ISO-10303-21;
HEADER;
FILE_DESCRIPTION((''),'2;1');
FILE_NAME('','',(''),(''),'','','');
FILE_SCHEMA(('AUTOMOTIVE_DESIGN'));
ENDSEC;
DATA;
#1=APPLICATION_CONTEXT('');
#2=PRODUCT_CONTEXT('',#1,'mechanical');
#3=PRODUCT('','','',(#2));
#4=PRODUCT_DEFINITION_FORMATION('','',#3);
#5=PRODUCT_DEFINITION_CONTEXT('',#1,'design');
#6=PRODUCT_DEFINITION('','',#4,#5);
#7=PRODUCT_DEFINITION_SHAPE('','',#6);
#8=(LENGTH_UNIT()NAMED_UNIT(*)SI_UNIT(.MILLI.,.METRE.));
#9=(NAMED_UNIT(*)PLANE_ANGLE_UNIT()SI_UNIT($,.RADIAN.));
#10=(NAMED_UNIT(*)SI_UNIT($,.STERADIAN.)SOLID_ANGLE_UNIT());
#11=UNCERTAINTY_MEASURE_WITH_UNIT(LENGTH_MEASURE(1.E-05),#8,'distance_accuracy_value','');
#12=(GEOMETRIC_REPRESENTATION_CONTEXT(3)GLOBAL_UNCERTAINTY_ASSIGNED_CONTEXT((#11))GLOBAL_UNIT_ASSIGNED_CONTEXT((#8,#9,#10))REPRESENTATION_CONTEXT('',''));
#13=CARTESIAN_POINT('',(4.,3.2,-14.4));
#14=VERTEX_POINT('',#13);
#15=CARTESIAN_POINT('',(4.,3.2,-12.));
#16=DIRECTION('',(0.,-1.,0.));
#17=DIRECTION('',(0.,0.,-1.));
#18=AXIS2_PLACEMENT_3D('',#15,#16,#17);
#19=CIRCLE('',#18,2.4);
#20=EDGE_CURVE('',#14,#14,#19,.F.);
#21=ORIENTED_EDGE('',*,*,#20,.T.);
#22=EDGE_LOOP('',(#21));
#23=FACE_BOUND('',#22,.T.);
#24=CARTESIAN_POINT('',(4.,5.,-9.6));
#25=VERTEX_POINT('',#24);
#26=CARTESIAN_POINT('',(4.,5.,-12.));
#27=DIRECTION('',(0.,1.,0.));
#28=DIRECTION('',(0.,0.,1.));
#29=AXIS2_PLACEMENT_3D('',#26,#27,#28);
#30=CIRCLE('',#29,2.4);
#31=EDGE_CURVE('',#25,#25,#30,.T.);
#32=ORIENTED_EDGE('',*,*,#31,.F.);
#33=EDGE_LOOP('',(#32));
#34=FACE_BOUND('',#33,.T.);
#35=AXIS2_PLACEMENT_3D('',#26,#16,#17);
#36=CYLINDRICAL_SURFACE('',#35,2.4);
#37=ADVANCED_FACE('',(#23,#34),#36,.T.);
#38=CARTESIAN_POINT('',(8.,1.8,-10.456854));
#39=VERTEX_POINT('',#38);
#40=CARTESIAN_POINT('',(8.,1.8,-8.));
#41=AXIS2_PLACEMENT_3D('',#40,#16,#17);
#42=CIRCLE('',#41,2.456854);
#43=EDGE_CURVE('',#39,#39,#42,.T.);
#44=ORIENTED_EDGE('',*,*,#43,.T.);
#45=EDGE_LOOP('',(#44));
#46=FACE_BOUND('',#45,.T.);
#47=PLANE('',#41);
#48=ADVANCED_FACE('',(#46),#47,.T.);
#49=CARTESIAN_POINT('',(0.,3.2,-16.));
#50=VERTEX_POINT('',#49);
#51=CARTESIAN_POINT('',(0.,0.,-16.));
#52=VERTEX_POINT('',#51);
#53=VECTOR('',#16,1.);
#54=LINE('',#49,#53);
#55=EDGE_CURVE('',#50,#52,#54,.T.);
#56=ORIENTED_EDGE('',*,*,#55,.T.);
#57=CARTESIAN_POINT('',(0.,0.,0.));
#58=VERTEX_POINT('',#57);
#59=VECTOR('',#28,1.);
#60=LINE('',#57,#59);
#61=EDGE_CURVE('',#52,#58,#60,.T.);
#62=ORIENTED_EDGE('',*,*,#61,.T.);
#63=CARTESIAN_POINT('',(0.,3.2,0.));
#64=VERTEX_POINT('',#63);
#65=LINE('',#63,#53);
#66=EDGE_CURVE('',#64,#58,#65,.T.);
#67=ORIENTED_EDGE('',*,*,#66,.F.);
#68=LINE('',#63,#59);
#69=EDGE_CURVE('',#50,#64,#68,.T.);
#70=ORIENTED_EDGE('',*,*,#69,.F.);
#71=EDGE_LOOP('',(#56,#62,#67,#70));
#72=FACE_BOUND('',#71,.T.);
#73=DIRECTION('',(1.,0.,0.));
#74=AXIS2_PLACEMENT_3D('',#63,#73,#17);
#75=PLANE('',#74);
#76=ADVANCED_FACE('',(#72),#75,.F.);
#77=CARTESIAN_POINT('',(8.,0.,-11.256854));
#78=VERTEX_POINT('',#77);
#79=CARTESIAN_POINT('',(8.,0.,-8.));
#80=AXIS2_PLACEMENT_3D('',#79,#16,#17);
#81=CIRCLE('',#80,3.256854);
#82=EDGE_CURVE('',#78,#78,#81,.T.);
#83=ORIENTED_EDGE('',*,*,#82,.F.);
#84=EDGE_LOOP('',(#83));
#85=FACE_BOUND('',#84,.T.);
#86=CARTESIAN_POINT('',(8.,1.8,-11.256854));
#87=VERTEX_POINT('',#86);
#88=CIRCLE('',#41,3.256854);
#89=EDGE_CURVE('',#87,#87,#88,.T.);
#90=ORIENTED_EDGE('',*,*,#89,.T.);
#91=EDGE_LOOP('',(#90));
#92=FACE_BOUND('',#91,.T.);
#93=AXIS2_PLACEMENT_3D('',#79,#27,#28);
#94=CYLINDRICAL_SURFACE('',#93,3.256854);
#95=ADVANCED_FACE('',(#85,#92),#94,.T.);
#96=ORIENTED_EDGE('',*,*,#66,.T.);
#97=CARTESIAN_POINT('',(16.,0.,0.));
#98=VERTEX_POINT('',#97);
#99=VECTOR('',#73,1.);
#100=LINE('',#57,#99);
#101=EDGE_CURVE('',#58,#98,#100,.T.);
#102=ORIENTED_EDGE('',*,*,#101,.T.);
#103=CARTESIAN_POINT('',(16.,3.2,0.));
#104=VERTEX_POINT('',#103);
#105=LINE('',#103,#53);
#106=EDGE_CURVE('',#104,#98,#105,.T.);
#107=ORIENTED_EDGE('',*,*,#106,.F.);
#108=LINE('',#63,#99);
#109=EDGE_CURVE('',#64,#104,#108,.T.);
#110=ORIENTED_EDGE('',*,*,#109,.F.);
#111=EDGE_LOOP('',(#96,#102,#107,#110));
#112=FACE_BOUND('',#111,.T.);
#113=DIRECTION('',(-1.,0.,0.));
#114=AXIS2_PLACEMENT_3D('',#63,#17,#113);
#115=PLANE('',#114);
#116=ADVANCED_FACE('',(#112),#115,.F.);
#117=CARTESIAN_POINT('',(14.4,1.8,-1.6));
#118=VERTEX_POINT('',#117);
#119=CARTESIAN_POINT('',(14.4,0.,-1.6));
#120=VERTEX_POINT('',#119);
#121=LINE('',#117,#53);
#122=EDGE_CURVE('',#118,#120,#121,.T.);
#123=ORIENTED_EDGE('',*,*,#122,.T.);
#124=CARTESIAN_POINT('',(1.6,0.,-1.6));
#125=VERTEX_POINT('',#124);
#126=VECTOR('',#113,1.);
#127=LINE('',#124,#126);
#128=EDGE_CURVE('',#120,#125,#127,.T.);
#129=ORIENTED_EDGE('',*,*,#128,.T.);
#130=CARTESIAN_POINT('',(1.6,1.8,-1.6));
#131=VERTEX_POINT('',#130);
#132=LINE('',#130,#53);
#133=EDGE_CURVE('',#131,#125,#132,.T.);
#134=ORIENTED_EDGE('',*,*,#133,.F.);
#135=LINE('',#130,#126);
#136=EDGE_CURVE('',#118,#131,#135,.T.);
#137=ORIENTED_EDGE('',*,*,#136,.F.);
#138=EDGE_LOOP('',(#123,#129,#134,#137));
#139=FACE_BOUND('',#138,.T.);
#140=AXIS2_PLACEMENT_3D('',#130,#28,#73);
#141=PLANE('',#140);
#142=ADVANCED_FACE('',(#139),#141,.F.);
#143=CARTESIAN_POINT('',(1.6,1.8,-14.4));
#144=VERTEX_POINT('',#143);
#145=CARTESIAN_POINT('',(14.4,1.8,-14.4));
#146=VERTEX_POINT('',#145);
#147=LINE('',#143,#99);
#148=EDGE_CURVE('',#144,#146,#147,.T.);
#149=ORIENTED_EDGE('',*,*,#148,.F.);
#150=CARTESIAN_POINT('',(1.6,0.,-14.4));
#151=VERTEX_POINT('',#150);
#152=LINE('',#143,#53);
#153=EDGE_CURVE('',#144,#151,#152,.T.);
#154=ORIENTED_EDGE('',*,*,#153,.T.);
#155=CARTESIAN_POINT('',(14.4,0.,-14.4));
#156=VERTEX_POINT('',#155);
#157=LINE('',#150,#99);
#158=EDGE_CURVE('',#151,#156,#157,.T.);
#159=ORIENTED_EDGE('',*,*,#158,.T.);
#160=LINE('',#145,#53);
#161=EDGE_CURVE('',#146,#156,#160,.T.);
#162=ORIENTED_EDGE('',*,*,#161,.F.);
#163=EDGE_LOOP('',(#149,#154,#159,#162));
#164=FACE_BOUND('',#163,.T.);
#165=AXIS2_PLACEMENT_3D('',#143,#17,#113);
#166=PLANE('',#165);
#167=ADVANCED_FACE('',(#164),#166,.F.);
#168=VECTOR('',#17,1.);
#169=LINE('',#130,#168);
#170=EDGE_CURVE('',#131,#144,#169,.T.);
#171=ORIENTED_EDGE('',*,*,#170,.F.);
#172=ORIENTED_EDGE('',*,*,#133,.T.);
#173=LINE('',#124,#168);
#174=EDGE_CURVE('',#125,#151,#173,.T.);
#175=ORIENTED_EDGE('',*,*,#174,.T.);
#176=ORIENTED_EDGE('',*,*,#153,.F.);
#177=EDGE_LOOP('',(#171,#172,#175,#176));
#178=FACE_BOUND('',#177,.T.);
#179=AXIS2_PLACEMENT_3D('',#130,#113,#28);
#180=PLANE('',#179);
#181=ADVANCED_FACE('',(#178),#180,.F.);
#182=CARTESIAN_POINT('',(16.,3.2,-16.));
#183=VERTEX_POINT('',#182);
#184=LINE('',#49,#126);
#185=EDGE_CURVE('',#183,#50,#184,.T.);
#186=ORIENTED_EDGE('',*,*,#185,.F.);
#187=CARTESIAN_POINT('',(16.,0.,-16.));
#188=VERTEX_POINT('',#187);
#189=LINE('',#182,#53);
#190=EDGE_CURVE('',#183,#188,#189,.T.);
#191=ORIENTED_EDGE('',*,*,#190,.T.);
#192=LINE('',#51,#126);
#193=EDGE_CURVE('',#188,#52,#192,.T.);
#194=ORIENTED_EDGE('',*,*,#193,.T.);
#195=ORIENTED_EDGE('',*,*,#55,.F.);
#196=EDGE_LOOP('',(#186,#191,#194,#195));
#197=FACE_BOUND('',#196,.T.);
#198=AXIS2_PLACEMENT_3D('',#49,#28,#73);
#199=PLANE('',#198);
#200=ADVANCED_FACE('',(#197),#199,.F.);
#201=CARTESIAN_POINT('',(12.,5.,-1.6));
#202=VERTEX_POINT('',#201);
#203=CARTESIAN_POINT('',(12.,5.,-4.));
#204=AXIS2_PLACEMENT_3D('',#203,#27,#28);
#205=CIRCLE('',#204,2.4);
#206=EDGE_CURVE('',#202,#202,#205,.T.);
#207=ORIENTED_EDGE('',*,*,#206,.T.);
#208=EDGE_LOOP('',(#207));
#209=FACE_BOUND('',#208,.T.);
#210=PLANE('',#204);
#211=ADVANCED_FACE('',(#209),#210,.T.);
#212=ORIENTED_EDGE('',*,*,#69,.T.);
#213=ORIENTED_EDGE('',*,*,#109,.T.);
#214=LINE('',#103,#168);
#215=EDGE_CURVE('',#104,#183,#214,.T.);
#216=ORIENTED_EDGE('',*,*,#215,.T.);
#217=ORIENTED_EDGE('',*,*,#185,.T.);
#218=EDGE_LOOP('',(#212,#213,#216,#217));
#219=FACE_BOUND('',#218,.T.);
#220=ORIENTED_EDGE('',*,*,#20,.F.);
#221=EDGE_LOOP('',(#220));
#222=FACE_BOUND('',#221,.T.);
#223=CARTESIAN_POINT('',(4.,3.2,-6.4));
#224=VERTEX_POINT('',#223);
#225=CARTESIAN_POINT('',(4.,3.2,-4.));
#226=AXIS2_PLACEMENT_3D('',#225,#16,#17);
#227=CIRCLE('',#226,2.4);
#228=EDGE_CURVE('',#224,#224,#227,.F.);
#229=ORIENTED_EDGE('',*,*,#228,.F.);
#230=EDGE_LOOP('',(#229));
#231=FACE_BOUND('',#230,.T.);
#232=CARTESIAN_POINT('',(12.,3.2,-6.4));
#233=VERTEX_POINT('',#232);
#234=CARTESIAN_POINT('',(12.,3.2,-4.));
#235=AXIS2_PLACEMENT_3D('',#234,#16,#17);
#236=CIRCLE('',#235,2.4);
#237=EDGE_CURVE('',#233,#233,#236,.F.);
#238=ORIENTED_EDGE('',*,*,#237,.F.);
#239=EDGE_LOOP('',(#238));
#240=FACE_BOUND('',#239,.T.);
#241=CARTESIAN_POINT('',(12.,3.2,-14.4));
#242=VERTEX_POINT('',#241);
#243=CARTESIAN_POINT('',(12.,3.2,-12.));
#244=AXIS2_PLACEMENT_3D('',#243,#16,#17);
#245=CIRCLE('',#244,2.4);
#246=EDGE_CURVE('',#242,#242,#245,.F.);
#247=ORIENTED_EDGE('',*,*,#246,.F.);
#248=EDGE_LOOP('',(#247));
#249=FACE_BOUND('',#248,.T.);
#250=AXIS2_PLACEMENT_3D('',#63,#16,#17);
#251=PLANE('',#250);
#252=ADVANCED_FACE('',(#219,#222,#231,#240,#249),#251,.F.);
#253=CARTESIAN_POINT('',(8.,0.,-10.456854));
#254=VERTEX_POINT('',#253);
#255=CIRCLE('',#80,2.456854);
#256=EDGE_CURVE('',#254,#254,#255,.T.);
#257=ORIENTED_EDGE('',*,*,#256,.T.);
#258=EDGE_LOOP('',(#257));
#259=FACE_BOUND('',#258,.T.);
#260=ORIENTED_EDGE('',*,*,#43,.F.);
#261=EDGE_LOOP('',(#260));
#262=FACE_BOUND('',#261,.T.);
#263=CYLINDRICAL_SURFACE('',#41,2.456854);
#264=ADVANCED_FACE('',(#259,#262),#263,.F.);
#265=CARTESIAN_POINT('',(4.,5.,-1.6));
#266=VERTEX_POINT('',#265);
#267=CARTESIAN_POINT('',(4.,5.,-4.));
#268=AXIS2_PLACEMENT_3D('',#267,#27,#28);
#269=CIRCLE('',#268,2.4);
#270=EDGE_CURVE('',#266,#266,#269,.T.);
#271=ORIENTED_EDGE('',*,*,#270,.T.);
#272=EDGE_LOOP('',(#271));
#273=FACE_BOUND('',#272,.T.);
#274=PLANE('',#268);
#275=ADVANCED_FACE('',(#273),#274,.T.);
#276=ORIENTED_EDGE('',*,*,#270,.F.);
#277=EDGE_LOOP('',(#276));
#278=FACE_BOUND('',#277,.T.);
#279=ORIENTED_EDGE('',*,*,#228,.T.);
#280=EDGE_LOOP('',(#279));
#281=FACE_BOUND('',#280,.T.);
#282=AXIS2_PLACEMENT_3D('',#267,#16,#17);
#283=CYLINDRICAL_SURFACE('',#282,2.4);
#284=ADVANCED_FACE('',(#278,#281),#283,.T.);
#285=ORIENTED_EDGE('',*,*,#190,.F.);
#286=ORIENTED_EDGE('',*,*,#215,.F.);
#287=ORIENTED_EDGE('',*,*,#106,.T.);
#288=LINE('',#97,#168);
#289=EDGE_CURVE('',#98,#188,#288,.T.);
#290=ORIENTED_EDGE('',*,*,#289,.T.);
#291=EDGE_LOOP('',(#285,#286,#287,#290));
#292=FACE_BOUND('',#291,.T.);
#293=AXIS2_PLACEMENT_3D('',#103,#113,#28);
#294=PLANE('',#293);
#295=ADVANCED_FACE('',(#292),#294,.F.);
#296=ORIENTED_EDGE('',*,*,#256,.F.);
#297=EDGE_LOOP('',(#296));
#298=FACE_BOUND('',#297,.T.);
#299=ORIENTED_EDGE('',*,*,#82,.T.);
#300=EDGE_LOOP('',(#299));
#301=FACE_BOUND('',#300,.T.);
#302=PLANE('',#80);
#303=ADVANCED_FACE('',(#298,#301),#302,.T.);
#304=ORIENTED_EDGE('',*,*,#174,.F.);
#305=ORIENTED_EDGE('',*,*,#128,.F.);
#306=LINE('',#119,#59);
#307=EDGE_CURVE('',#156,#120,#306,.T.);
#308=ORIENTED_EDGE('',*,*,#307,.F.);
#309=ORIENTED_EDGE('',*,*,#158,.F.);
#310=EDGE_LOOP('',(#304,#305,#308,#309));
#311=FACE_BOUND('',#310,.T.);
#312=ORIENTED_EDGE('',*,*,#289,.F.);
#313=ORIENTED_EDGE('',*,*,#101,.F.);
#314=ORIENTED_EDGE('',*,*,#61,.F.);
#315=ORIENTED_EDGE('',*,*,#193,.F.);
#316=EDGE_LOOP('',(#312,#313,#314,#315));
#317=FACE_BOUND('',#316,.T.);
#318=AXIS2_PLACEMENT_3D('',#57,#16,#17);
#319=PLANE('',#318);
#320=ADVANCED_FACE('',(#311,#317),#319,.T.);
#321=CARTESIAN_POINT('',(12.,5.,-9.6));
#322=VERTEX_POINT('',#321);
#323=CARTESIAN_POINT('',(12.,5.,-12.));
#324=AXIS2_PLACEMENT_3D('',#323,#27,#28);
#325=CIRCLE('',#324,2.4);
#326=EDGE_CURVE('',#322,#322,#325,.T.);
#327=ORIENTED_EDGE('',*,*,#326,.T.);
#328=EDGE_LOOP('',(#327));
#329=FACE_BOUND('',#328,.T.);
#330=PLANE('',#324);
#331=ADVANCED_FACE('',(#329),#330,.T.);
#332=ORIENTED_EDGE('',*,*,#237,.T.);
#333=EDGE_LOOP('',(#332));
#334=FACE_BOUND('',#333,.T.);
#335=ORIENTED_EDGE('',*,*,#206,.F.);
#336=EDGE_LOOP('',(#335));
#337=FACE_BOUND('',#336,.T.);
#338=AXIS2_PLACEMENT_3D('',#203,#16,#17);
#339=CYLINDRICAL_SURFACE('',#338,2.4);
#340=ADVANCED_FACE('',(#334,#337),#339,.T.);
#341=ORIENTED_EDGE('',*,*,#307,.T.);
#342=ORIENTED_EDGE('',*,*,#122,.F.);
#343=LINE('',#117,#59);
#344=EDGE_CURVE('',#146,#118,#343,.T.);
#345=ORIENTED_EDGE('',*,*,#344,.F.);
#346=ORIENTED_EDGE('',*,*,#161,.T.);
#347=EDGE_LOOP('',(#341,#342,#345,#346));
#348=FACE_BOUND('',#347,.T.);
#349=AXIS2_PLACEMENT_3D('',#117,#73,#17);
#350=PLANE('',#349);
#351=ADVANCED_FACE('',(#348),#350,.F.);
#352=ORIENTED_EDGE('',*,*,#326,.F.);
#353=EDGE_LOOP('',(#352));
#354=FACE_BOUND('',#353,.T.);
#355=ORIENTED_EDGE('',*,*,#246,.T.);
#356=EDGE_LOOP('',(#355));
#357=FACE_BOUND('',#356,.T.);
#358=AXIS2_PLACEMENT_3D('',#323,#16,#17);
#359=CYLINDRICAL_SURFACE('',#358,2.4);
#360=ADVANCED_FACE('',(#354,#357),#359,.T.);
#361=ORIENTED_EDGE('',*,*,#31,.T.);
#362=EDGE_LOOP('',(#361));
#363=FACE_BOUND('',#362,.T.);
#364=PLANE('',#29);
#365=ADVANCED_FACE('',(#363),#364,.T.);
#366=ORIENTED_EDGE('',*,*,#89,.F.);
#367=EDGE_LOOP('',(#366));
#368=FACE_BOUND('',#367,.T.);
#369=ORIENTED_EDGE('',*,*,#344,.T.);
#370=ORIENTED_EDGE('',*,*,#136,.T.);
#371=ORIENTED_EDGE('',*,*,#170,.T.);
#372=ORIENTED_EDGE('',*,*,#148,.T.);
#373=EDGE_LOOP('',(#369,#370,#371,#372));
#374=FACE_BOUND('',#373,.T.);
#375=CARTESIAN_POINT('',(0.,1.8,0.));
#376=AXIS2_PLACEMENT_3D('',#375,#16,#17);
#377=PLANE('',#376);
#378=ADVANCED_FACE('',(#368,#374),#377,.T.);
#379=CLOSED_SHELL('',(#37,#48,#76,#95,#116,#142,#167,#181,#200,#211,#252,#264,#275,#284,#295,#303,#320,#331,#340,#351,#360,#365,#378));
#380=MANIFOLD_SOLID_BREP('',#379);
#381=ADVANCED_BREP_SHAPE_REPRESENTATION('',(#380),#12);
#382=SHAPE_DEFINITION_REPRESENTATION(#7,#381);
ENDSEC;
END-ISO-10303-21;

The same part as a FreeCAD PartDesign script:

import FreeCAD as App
import Part
import Sketcher

V = App.Vector

doc = App.newDocument("Part")
params = doc.addObject("Spreadsheet::Sheet", "Params")
for row, (alias, value) in enumerate([
    ("sketch1_width", "16 mm"),
    ("pad1_length", "3.2 mm"),
    ("sketch2_diameter", "4.8 mm"),
    ("pad2_length", "1.8 mm"),
    ("sketch3_width", "12.8 mm"),
    ("pocket1_length", "1.8 mm"),
    ("pad3_length", "1.8 mm"),
    ("pocket2_length", "1.8 mm"),
], start=1):
    params.set(f"A{row}", alias)
    params.set(f"B{row}", "=" + value)
    params.setAlias(f"B{row}", alias)

body = doc.addObject("PartDesign::Body", "Body")

# Sketch on XZ plane
sketch1 = body.newObject("Sketcher::SketchObject", "Sketch")
sketch1.AttachmentSupport = (doc.getObject("XZ_Plane"), [""])
sketch1.MapMode = "FlatFace"
sketch1.addGeometry([
    Part.LineSegment(V(0, -16, 0), V(0, 0, 0)),
    Part.LineSegment(V(0, 0, 0), V(16, 0, 0)),
    Part.LineSegment(V(16, 0, 0), V(16, -16, 0)),
    Part.LineSegment(V(16, -16, 0), V(0, -16, 0)),
], False)
sketch1.addConstraint([
    Sketcher.Constraint("Coincident", 0, 2, 1, 1),
    Sketcher.Constraint("Coincident", 1, 2, 2, 1),
    Sketcher.Constraint("Coincident", 2, 2, 3, 1),
    Sketcher.Constraint("Coincident", 3, 2, 0, 1),
    Sketcher.Constraint("Vertical", 0),
    Sketcher.Constraint("Horizontal", 1),
    Sketcher.Constraint("Vertical", 2),
    Sketcher.Constraint("Horizontal", 3),
    Sketcher.Constraint("Coincident", 0, 2, -1, 1),
    Sketcher.Constraint("Equal", 3, 0),
    Sketcher.Constraint("DistanceX", 1, 1, 1, 2, 16.0),
])
sketch1.setExpression("Constraints[10]", "Params.sketch1_width")
pad1 = body.newObject("PartDesign::Pad", "Pad")
pad1.Profile = sketch1
pad1.setExpression("Length", "Params.pad1_length")
pad1.Reversed = True

# Sketch on XZ plane
sketch2 = body.newObject("Sketcher::SketchObject", "Sketch001")
sketch2.AttachmentSupport = (doc.getObject("XZ_Plane"), [""])
sketch2.MapMode = "FlatFace"
sketch2.AttachmentOffset = App.Placement(V(0, 0, -3.2), App.Rotation())
sketch2.addGeometry([
    Part.Circle(V(4, -12, 0), V(0, 0, 1), 2.4),
    Part.Circle(V(12, -12, 0), V(0, 0, 1), 2.4),
    Part.Circle(V(12, -4, 0), V(0, 0, 1), 2.4),
    Part.Circle(V(4, -4, 0), V(0, 0, 1), 2.4),
], False)
sketch2.addConstraint([
    Sketcher.Constraint("Equal", 0, 1),
    Sketcher.Constraint("Equal", 1, 2),
    Sketcher.Constraint("Equal", 2, 3),
    Sketcher.Constraint("Horizontal", 0, 3, 1, 3),
    Sketcher.Constraint("Horizontal", 2, 3, 3, 3),
    Sketcher.Constraint("Vertical", 1, 3, 2, 3),
    Sketcher.Constraint("Vertical", 0, 3, 3, 3),
    Sketcher.Constraint("Diameter", 0, 4.8),
    Sketcher.Constraint("DistanceX", -1, 1, 0, 3, 4.0),
    Sketcher.Constraint("DistanceY", 0, 3, -1, 1, 12.0),
    Sketcher.Constraint("DistanceX", -1, 1, 1, 3, 12.0),
    Sketcher.Constraint("DistanceY", 2, 3, -1, 1, 4.0),
])
sketch2.setExpression("Constraints[7]", "Params.sketch2_diameter")
pad2 = body.newObject("PartDesign::Pad", "Pad001")
pad2.Profile = sketch2
pad2.setExpression("Length", "Params.pad2_length")
pad2.Reversed = True

# Sketch on XZ plane
sketch3 = body.newObject("Sketcher::SketchObject", "Sketch002")
sketch3.AttachmentSupport = (doc.getObject("XZ_Plane"), [""])
sketch3.MapMode = "FlatFace"
sketch3.addGeometry([
    Part.LineSegment(V(1.6, -1.6, 0), V(1.6, -14.4, 0)),
    Part.LineSegment(V(1.6, -14.4, 0), V(14.4, -14.4, 0)),
    Part.LineSegment(V(14.4, -14.4, 0), V(14.4, -1.6, 0)),
    Part.LineSegment(V(14.4, -1.6, 0), V(1.6, -1.6, 0)),
], False)
sketch3.addConstraint([
    Sketcher.Constraint("Coincident", 0, 2, 1, 1),
    Sketcher.Constraint("Coincident", 1, 2, 2, 1),
    Sketcher.Constraint("Coincident", 2, 2, 3, 1),
    Sketcher.Constraint("Coincident", 3, 2, 0, 1),
    Sketcher.Constraint("Vertical", 0),
    Sketcher.Constraint("Horizontal", 1),
    Sketcher.Constraint("Vertical", 2),
    Sketcher.Constraint("Horizontal", 3),
    Sketcher.Constraint("Equal", 3, 0),
    Sketcher.Constraint("DistanceX", 1, 1, 1, 2, 12.8),
    Sketcher.Constraint("DistanceX", -1, 1, 0, 2, 1.6),
    Sketcher.Constraint("DistanceY", 0, 2, -1, 1, 14.4),
])
sketch3.setExpression("Constraints[9]", "Params.sketch3_width")
pocket1 = body.newObject("PartDesign::Pocket", "Pocket")
pocket1.Profile = sketch3
pocket1.setExpression("Length", "Params.pocket1_length")

# Sketch on XZ plane
sketch4 = body.newObject("Sketcher::SketchObject", "Sketch003")
sketch4.AttachmentSupport = (doc.getObject("XZ_Plane"), [""])
sketch4.MapMode = "FlatFace"
sketch4.AttachmentOffset = App.Placement(V(0, 0, -1.8), App.Rotation())
sketch4.addGeometry(Part.Circle(V(8, -8, 0), V(0, 0, 1), 3.256854), False)
sketch4.addConstraint([
    Sketcher.Constraint("DistanceX", -1, 1, 0, 3, 8.0),
    Sketcher.Constraint("DistanceY", 0, 3, -1, 1, 8.0),
    Sketcher.Constraint("Diameter", 0, 6.513708),
])
pad3 = body.newObject("PartDesign::Pad", "Pad002")
pad3.Profile = sketch4
pad3.setExpression("Length", "Params.pad3_length")

# Sketch on XZ plane
sketch5 = body.newObject("Sketcher::SketchObject", "Sketch004")
sketch5.AttachmentSupport = (doc.getObject("XZ_Plane"), [""])
sketch5.MapMode = "FlatFace"
sketch5.addGeometry(Part.Circle(V(8, -8, 0), V(0, 0, 1), 2.456854), False)
sketch5.addConstraint([
    Sketcher.Constraint("DistanceX", -1, 1, 0, 3, 8.0),
    Sketcher.Constraint("DistanceY", 0, 3, -1, 1, 8.0),
    Sketcher.Constraint("Diameter", 0, 4.913709),
])
pocket2 = body.newObject("PartDesign::Pocket", "Pocket001")
pocket2.Profile = sketch5
pocket2.setExpression("Length", "Params.pocket2_length")

doc.recompute()
